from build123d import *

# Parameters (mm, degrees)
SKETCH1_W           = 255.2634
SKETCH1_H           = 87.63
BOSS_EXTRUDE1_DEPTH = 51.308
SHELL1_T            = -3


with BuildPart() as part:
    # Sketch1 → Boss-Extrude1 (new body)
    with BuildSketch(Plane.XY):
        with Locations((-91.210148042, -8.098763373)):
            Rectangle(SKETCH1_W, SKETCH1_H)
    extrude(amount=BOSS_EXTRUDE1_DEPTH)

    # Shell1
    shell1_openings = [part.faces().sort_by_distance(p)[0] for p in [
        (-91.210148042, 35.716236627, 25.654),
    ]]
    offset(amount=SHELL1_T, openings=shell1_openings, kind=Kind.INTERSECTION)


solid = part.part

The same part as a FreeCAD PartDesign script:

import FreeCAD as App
import Part
import Sketcher
from FreeCAD import Vector
Q = App.Units.Quantity


def faces_at(feature, points):
    """Names of the faces that lie closest to the given points."""
    faces = feature.Shape.Faces
    near = lambda p: min(range(len(faces)), key=lambda i: faces[i].distToShape(Part.Vertex(*p))[0])
    return sorted({f"Face{near(p) + 1}" for p in points})

doc = App.newDocument("Part")
params = doc.addObject("Spreadsheet::Sheet", "Params")
for row, (alias, value) in enumerate([
    ("sketch1_height", "3.45 in"),
    ("pad1_length", "2.02 in"),
    ("thickness_wall", "3 mm"),
], start=1):
    params.set(f"A{row}", alias)
    params.set(f"B{row}", "=" + value)
    params.setAlias(f"B{row}", alias)

body = doc.addObject("PartDesign::Body", "Body")

# Sketch on XY plane
sketch1 = body.newObject("Sketcher::SketchObject", "Sketch")
sketch1.AttachmentSupport = (doc.getObject("XY_Plane"), [""])
sketch1.MapMode = "FlatFace"
sketch1.addGeometry([
    Part.LineSegment(Vector(-219, 36, 0), Vector(-219, -52, 0)),
    Part.LineSegment(Vector(-219, -52, 0), Vector(36, -52, 0)),
    Part.LineSegment(Vector(36, -52, 0), Vector(36, 36, 0)),
    Part.LineSegment(Vector(36, 36, 0), Vector(-219, 36, 0)),
], False)
sketch1.addConstraint([
    Sketcher.Constraint("Coincident", 0, 2, 1, 1),
    Sketcher.Constraint("Coincident", 1, 2, 2, 1),
    Sketcher.Constraint("Coincident", 2, 2, 3, 1),
    Sketcher.Constraint("Coincident", 3, 2, 0, 1),
    Sketcher.Constraint("Vertical", 0),
    Sketcher.Constraint("Horizontal", 1),
    Sketcher.Constraint("Vertical", 2),
    Sketcher.Constraint("Horizontal", 3),
    Sketcher.Constraint("DistanceY", 0, 2, 0, 1, Q("3.45 in")),
    Sketcher.Constraint("DistanceX", 1, 1, 1, 2, 255.2634),
    Sketcher.Constraint("DistanceX", 0, 2, -1, 1, 218.841848),
    Sketcher.Constraint("DistanceY", 0, 2, -1, 1, 51.913763),
])
sketch1.setExpression("Constraints[8]", "Params.sketch1_height")
pad1 = body.newObject("PartDesign::Pad", "Pad")
pad1.Profile = sketch1
pad1.setExpression("Length", "Params.pad1_length")
doc.recompute()

thickness = body.newObject("PartDesign::Thickness", "Thickness")
thickness.Base = (pad1, faces_at(pad1, [(-91.21, 35.716, 25.654)]))
thickness.setExpression("Value", "Params.thickness_wall")
thickness.Reversed = True
thickness.Join = "Intersection"

doc.recompute()
